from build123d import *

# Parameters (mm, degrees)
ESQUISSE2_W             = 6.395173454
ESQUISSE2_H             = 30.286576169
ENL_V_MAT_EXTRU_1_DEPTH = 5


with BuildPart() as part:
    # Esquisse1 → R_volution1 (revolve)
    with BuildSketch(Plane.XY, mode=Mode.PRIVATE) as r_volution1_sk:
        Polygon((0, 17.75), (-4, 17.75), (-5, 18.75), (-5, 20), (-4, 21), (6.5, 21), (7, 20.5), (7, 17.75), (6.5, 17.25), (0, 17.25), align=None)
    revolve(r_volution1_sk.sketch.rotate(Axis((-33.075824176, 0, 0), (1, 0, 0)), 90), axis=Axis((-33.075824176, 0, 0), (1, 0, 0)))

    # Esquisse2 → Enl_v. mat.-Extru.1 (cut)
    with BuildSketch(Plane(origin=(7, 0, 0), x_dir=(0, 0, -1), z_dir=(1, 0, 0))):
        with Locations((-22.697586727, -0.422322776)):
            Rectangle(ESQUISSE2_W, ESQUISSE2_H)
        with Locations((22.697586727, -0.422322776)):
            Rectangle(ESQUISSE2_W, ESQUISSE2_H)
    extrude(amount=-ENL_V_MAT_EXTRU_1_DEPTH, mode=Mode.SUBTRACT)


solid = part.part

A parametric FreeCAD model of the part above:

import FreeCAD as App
import Part
import Sketcher
from FreeCAD import Vector


def add_polygon(sketch, points):
    """Adds a closed chain of lines whose ends are joined by coincident constraints."""
    first, n = sketch.GeometryCount, len(points)
    for a, b in zip(points, points[1:] + points[:1]):
        sketch.addGeometry(Part.LineSegment(App.Vector(*a, 0), App.Vector(*b, 0)), False)
    for i in range(n):
        sketch.addConstraint(Sketcher.Constraint("Coincident", first + i, 2, first + (i + 1) % n, 1))

doc = App.newDocument("Part")
body = doc.addObject("PartDesign::Body", "Body")

sketch1 = body.newObject("Sketcher::SketchObject", "Sketch")
sketch1.AttachmentSupport = (doc.getObject("XY_Plane"), [""])
sketch1.MapMode = "FlatFace"
add_polygon(sketch1, [(-4, 17.75), (0, 17.75), (0, 17.25), (6.5, 17.25), (7, 17.75), (7, 20.5), (6.5, 21), (-4, 21), (-5, 20), (-5, 18.75)])
sketch1.addConstraint(Sketcher.Constraint("Horizontal", 0))
sketch1.addConstraint(Sketcher.Constraint("Vertical", 1))
sketch1.addConstraint(Sketcher.Constraint("Horizontal", 2))
sketch1.addConstraint(Sketcher.Constraint("Vertical", 4))
sketch1.addConstraint(Sketcher.Constraint("Horizontal", 6))
sketch1.addConstraint(Sketcher.Constraint("Vertical", 8))
sketch1.addConstraint(Sketcher.Constraint("PointOnObject", 0, 2, -2))
sketch1.addConstraint(Sketcher.Constraint("Perpendicular", 3, 5))
sketch1.addConstraint(Sketcher.Constraint("Perpendicular", 5, 7))
sketch1.addConstraint(Sketcher.Constraint("Perpendicular", 7, 9))
sketch1.addConstraint(Sketcher.Constraint("Horizontal", 0, 2, 3, 2))
sketch1.addConstraint(Sketcher.Constraint("Vertical", 2, 2, 5, 2))
sketch1.addConstraint(Sketcher.Constraint("Vertical", 6, 2, 9, 2))
sketch1.addConstraint(Sketcher.Constraint("Equal", 3, 5))
sketch1.addConstraint(Sketcher.Constraint("DistanceX", 0, 1, 0, 2, 4.0))
sketch1.addConstraint(Sketcher.Constraint("DistanceX", 2, 1, 2, 2, 6.5))
sketch1.addConstraint(Sketcher.Constraint("DistanceY", 1, 2, 1, 1, 0.5))
sketch1.addConstraint(Sketcher.Constraint("DistanceY", -1, 1, 5, 2, 21.0))
sketch1.addConstraint(Sketcher.Constraint("DistanceX", 7, 2, -1, 1, 5.0))
sketch1.addConstraint(Sketcher.Constraint("DistanceY", 4, 1, 4, 2, 2.75))
revolution = body.newObject("PartDesign::Revolution", "Revolution")
revolution.Profile = sketch1
revolution.ReferenceAxis = (sketch1, ["H_Axis"])
revolution.Angle = 360

sketch2 = body.newObject("Sketcher::SketchObject", "Sketch001")
sketch2.AttachmentSupport = (doc.getObject("YZ_Plane"), [""])
sketch2.MapMode = "FlatFace"
sketch2.AttachmentOffset = App.Placement(Vector(0, 0, 7), App.Rotation())
add_polygon(sketch2, [(14.720965, 25.895173), (-15.565611, 25.895173), (-15.565611, 19.5), (14.720965, 19.5)])
add_polygon(sketch2, [(14.720965, -19.5), (-15.565611, -19.5), (-15.565611, -25.895173), (14.720965, -25.895173)])
sketch2.addConstraint(Sketcher.Constraint("Horizontal", 0))
sketch2.addConstraint(Sketcher.Constraint("Vertical", 1))
sketch2.addConstraint(Sketcher.Constraint("Horizontal", 2))
sketch2.addConstraint(Sketcher.Constraint("Vertical", 3))
sketch2.addConstraint(Sketcher.Constraint("Horizontal", 4))
sketch2.addConstraint(Sketcher.Constraint("Vertical", 5))
sketch2.addConstraint(Sketcher.Constraint("Horizontal", 6))
sketch2.addConstraint(Sketcher.Constraint("Vertical", 7))
sketch2.addConstraint(Sketcher.Constraint("Symmetric", 1, 2, 4, 2, -1))
sketch2.addConstraint(Sketcher.Constraint("Symmetric", 3, 2, 6, 2, -1))
sketch2.addConstraint(Sketcher.Constraint("DistanceY", 4, 2, 1, 2, 39.0))
sketch2.addConstraint(Sketcher.Constraint("DistanceX", 0, 2, 0, 1, 30.286576))
sketch2.addConstraint(Sketcher.Constraint("DistanceY", 1, 2, 1, 1, 6.395173))
sketch2.addConstraint(Sketcher.Constraint("DistanceX", 0, 2, -1, 1, 15.565611))
pocket1 = body.newObject("PartDesign::Pocket", "Pocket")
pocket1.Profile = sketch2
pocket1.Length = 5

doc.recompute()
